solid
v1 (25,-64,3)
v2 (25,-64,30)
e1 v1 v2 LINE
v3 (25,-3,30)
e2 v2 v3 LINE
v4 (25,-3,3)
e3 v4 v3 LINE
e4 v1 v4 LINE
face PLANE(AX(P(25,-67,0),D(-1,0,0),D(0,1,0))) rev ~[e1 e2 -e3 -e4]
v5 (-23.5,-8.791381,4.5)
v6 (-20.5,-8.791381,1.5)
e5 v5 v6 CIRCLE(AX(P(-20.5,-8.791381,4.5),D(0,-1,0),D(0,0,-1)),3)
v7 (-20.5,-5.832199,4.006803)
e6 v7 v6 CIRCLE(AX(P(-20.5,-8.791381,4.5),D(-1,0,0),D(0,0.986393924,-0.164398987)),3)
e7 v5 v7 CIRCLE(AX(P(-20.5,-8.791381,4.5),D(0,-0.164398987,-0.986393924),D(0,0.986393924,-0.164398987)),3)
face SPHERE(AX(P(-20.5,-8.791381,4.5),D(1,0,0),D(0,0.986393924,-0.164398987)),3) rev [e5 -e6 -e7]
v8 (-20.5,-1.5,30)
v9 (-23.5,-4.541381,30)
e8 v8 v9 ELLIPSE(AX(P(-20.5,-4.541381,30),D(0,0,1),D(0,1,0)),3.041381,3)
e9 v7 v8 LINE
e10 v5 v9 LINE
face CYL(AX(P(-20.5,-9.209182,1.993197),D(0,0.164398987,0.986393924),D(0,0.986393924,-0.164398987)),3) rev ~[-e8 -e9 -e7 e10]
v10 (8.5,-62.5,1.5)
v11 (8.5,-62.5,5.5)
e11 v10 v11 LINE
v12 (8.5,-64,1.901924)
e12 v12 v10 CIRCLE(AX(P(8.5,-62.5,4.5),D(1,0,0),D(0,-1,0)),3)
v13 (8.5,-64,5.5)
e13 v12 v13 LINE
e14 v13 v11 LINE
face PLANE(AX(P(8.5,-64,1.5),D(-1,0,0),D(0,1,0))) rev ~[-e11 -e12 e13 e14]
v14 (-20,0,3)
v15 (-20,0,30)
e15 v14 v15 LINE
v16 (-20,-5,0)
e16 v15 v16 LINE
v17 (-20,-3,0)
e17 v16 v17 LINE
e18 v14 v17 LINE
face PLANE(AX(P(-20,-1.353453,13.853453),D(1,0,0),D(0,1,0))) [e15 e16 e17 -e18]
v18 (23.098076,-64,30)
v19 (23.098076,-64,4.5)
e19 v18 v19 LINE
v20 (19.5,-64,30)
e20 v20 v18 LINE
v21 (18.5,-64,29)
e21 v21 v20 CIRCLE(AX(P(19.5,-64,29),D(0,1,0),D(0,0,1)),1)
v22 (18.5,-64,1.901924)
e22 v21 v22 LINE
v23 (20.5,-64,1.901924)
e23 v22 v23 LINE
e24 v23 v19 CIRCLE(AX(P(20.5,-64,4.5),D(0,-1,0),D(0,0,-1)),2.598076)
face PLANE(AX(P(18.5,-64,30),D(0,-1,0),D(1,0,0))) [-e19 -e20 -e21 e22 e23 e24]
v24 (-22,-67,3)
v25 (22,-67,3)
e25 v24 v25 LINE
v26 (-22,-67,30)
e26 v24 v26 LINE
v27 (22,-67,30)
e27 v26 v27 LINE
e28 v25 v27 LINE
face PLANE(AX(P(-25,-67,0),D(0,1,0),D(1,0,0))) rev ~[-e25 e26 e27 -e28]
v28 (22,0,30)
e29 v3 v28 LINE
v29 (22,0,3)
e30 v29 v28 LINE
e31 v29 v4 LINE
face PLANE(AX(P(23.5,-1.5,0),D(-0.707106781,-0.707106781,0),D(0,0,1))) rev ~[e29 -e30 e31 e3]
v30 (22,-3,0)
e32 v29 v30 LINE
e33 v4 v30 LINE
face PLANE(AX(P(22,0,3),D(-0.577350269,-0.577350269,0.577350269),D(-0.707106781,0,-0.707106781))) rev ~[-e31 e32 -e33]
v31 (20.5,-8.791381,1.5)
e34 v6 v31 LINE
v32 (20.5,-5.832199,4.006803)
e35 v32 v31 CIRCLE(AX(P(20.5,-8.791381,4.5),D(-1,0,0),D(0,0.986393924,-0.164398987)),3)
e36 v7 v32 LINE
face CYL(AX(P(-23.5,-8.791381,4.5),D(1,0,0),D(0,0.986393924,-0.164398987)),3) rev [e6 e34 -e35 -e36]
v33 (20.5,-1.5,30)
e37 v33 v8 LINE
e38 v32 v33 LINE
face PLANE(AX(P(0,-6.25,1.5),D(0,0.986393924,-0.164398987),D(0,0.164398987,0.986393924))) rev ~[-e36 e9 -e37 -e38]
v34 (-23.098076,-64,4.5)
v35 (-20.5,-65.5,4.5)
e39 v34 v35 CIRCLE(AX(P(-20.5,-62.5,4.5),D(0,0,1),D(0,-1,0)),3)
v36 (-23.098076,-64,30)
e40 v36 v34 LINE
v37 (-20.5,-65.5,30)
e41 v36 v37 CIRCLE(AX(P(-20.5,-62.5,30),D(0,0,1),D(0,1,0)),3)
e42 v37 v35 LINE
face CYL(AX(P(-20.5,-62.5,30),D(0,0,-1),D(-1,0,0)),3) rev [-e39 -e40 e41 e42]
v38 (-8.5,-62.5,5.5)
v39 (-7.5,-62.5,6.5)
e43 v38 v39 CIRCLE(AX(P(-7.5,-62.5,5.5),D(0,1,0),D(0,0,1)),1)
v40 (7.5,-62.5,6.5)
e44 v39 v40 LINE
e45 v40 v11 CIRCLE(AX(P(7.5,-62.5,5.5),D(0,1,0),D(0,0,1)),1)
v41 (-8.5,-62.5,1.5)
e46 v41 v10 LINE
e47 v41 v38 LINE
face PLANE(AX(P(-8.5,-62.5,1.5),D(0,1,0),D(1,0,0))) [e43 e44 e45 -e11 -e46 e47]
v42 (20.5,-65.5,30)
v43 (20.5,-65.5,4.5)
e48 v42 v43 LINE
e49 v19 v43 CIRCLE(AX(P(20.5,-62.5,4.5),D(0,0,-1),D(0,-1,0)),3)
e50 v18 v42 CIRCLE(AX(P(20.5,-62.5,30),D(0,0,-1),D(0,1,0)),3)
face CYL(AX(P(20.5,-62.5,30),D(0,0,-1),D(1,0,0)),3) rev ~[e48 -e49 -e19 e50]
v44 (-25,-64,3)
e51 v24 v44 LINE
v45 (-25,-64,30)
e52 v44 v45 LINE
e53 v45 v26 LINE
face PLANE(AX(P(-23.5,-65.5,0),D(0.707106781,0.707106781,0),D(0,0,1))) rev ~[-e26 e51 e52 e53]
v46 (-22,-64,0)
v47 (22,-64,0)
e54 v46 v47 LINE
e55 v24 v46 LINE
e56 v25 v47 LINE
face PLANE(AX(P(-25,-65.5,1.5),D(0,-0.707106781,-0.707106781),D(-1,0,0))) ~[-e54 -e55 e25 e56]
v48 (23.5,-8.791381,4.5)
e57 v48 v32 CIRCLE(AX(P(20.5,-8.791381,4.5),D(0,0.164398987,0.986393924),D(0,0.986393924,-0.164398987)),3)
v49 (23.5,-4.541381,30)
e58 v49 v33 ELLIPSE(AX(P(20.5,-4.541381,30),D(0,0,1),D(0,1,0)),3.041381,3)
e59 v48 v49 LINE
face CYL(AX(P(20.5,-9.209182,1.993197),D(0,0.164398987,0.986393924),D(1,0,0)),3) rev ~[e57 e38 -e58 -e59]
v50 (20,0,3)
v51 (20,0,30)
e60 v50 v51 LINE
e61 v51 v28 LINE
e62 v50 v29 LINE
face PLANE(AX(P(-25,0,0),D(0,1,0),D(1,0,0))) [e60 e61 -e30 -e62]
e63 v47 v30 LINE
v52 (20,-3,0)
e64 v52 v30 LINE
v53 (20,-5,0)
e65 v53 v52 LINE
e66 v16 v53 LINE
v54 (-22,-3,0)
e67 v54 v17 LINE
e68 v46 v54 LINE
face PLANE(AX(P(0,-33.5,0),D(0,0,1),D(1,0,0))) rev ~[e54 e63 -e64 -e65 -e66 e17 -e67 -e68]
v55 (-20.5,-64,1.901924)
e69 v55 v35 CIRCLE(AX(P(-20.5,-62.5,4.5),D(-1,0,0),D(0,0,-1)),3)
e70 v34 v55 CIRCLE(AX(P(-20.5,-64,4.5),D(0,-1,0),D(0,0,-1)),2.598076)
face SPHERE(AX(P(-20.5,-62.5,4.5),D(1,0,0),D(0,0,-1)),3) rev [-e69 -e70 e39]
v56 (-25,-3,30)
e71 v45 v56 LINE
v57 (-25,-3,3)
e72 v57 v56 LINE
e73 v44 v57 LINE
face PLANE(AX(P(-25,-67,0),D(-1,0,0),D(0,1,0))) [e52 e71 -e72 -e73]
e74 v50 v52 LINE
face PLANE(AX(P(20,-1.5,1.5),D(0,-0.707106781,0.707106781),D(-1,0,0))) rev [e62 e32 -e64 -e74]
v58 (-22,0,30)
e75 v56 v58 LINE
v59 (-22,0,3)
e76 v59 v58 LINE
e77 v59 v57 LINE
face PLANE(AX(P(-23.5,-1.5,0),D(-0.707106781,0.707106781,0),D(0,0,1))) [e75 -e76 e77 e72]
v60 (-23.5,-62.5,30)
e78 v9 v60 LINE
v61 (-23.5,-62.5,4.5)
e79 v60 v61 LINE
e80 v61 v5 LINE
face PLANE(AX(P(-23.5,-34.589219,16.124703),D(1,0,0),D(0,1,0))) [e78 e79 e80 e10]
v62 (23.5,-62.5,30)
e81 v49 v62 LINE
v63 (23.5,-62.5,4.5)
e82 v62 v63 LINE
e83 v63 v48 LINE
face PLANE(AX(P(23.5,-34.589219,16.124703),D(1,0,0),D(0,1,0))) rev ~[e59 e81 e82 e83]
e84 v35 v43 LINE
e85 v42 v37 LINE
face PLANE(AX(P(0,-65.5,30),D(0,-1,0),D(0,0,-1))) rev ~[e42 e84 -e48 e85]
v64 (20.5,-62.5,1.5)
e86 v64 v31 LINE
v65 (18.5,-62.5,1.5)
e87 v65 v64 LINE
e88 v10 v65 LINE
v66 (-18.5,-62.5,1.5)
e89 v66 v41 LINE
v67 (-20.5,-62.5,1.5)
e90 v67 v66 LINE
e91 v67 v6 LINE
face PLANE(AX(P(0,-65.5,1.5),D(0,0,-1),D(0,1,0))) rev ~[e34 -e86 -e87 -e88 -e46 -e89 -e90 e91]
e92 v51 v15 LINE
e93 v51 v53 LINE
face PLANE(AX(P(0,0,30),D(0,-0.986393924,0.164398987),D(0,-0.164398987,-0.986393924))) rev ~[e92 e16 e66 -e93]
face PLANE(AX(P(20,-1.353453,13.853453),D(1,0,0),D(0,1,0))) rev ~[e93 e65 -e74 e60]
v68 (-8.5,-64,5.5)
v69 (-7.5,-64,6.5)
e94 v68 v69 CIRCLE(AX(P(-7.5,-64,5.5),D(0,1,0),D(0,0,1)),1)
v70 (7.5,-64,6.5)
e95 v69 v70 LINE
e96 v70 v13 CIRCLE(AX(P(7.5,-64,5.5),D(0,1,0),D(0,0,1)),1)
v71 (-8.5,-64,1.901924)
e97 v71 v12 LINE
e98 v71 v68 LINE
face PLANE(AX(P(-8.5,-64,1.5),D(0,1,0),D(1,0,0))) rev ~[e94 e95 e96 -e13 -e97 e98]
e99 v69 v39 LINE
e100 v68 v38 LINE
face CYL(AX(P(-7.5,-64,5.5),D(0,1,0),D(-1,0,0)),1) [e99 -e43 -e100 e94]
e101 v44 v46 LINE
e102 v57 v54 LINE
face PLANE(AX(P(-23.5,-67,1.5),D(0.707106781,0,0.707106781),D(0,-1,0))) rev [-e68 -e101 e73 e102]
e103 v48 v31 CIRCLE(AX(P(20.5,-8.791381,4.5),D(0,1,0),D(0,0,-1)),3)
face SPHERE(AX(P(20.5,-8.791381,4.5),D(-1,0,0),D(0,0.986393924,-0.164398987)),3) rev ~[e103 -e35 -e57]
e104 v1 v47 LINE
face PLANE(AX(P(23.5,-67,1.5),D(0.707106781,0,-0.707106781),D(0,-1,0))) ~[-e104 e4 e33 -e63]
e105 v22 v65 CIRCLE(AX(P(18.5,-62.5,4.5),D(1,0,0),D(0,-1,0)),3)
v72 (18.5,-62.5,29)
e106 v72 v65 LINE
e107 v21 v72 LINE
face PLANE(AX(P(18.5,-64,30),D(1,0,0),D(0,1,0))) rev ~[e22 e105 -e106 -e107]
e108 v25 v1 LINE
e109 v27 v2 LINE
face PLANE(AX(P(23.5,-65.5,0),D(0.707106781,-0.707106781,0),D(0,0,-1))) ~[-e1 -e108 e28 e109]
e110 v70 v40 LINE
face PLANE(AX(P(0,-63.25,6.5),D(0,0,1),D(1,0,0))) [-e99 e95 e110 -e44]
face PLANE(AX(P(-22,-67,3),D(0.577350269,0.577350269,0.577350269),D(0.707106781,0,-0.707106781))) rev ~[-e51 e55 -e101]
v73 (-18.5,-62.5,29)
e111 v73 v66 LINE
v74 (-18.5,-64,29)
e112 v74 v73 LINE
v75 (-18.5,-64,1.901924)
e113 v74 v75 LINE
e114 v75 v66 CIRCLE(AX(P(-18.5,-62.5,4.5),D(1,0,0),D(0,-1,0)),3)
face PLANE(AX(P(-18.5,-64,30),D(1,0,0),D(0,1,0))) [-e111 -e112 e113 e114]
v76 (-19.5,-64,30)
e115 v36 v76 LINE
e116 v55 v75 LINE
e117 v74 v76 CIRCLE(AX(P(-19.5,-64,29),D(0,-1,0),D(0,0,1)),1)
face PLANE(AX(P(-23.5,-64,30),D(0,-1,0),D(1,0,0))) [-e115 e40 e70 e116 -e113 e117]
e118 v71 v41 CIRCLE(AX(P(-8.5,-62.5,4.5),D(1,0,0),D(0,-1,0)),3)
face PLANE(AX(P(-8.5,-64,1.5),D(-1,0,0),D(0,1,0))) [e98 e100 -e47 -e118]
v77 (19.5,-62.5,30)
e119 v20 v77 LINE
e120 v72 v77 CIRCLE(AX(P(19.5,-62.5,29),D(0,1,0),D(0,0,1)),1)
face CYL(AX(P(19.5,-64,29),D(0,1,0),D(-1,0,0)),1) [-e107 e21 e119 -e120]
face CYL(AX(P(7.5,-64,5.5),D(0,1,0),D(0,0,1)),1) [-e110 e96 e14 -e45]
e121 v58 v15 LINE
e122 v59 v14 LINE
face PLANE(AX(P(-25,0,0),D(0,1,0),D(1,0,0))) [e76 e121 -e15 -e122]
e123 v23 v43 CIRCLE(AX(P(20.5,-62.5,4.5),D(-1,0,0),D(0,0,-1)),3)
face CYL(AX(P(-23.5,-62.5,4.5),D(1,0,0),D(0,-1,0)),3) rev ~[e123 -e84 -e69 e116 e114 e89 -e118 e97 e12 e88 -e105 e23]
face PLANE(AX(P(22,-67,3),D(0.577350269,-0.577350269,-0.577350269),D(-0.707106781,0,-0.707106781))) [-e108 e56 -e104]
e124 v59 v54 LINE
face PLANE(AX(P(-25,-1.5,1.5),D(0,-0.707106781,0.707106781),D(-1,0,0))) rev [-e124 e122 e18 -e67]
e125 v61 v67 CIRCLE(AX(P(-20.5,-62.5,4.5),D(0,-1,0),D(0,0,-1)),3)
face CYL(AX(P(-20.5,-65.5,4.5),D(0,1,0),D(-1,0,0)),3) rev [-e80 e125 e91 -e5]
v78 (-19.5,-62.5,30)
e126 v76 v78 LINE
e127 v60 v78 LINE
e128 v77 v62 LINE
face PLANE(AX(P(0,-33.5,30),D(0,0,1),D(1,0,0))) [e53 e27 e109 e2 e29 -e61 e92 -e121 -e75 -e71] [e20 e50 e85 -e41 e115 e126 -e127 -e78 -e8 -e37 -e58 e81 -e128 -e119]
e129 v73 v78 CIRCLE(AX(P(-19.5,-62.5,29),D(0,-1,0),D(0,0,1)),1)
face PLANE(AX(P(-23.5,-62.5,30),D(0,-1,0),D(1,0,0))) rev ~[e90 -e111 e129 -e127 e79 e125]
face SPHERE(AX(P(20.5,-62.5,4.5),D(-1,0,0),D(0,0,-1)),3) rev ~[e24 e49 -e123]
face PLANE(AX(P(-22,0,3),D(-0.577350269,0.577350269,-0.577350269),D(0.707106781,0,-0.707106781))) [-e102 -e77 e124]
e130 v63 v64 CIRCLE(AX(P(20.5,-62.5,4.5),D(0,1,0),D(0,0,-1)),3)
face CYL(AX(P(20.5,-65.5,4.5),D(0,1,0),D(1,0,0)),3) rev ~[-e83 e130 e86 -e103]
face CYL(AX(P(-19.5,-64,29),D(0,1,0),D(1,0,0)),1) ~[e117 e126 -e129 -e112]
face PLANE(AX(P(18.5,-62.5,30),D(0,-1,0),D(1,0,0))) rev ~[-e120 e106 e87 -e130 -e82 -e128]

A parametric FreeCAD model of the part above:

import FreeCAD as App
import Part
import Sketcher


def edges_at(feature, points):
    """Names of the edges that pass closest to the given points."""
    edges = feature.Shape.Edges
    near = lambda p: min(range(len(edges)), key=lambda i: edges[i].distToShape(Part.Vertex(*p))[0])
    return sorted({f"Edge{near(p) + 1}" for p in points})

doc = App.newDocument("Part")
body = doc.addObject("PartDesign::Body", "Body")

sketch1 = doc.addObject("Sketcher::SketchObject", "Sketch")
body.addObject(sketch1)
sketch1.AttachmentSupport = (doc.XY_Plane, [""])
sketch1.MapMode = "FlatFace"
sketch1.addGeometry([
    Part.LineSegment(App.Vector(-25, 0, 0), App.Vector(-25, -67, 0)),
    Part.LineSegment(App.Vector(-25, -67, 0), App.Vector(25, -67, 0)),
    Part.LineSegment(App.Vector(25, -67, 0), App.Vector(25, 0, 0)),
    Part.LineSegment(App.Vector(25, 0, 0), App.Vector(-25, 0, 0)),
], False)
sketch1.addConstraint([
    Sketcher.Constraint("Coincident", 0, 2, 1, 1),
    Sketcher.Constraint("Coincident", 1, 2, 2, 1),
    Sketcher.Constraint("Coincident", 2, 2, 3, 1),
    Sketcher.Constraint("Coincident", 3, 2, 0, 1),
    Sketcher.Constraint("Vertical", 0),
    Sketcher.Constraint("Horizontal", 1),
    Sketcher.Constraint("Vertical", 2),
    Sketcher.Constraint("Horizontal", 3),
    Sketcher.Constraint("Symmetric", 2, 2, 3, 2, -1, 1),
    Sketcher.Constraint("DistanceX", 1, 1, 1, 2, 50.0),
    Sketcher.Constraint("DistanceY", 0, 2, 0, 1, 67.0),
])
pad1 = doc.addObject("PartDesign::Pad", "Pad")
body.addObject(pad1)
pad1.Profile = sketch1
pad1.Length = 30

sketch2 = doc.addObject("Sketcher::SketchObject", "Sketch001")
body.addObject(sketch2)
sketch2.AttachmentSupport = (doc.YZ_Plane, [""])
sketch2.MapMode = "FlatFace"
sketch2.addGeometry([
    Part.LineSegment(App.Vector(0, 30, 0), App.Vector(-5, 0, 0)),
    Part.LineSegment(App.Vector(-5, 0, 0), App.Vector(0, 0, 0)),
    Part.LineSegment(App.Vector(0, 0, 0), App.Vector(0, 30, 0)),
], False)
sketch2.addConstraint([
    Sketcher.Constraint("Coincident", 0, 2, 1, 1),
    Sketcher.Constraint("Coincident", 1, 2, 2, 1),
    Sketcher.Constraint("Coincident", 2, 2, 0, 1),
    Sketcher.Constraint("Horizontal", 1),
    Sketcher.Constraint("Vertical", 2),
    Sketcher.Constraint("Coincident", 1, 2, -1, 1),
    Sketcher.Constraint("DistanceX", 1, 1, 1, 2, 5.0),
    Sketcher.Constraint("DistanceY", 2, 1, 2, 2, 30.0),
])
pocket1 = doc.addObject("PartDesign::Pocket", "Pocket")
body.addObject(pocket1)
pocket1.Profile = sketch2
pocket1.Length = 40
pocket1.Midplane = True

sketch3 = doc.addObject("Sketcher::SketchObject", "Sketch002")
body.addObject(sketch3)
sketch3.AttachmentSupport = (doc.YZ_Plane, [""])
sketch3.MapMode = "FlatFace"
sketch3.addGeometry([
    Part.LineSegment(App.Vector(-66, 30, 0), App.Vector(-66, 2, 0)),
    Part.LineSegment(App.Vector(-66, 2, 0), App.Vector(-6, 2, 0)),
    Part.LineSegment(App.Vector(-6, 2, 0), App.Vector(-2, 30, 0)),
    Part.LineSegment(App.Vector(-2, 30, 0), App.Vector(-66, 30, 0)),
], False)
sketch3.addConstraint([
    Sketcher.Constraint("Coincident", 0, 2, 1, 1),
    Sketcher.Constraint("Coincident", 1, 2, 2, 1),
    Sketcher.Constraint("Coincident", 2, 2, 3, 1),
    Sketcher.Constraint("Coincident", 3, 2, 0, 1),
    Sketcher.Constraint("Vertical", 0),
    Sketcher.Constraint("Horizontal", 1),
    Sketcher.Constraint("Horizontal", 3),
    Sketcher.Constraint("DistanceX", 3, 2, 3, 1, 64.0),
    Sketcher.Constraint("DistanceY", 0, 2, 0, 1, 28.5),
    Sketcher.Constraint("DistanceY", -1, 1, 2, 2, 30.0),
    Sketcher.Constraint("DistanceX", 1, 1, 1, 2, 59.25),
    Sketcher.Constraint("DistanceX", 0, 2, -1, 1, 65.5),
])
pocket2 = doc.addObject("PartDesign::Pocket", "Pocket001")
body.addObject(pocket2)
pocket2.Profile = sketch3
pocket2.Length = 47
pocket2.Midplane = True
doc.recompute()

fillet = doc.addObject("PartDesign::Fillet", "Fillet")
body.addObject(fillet)
fillet.Base = (pocket2, edges_at(pocket2, [
    (0, -65.5, 1.5),
    (23.5, -35.875, 1.5),
    (-23.5, -35.875, 1.5),
    (0, -6.25, 1.5),
    (23.5, -65.5, 15.75),
    (-23.5, -65.5, 15.75),
    (23.5, -3.875, 15.75),
    (-23.5, -3.875, 15.75),
]))
fillet.Radius = 3

sketch4 = doc.addObject("Sketcher::SketchObject", "Sketch003")
body.addObject(sketch4)
sketch4.AttachmentSupport = (doc.XY_Plane, [""])
sketch4.MapMode = "FlatFace"
sketch4.AttachmentOffset = App.Placement(App.Vector(0, 0, 30), App.Rotation())
sketch4.addGeometry([
    Part.LineSegment(App.Vector(-23.5, -62.5, 0), App.Vector(-23.5, -64, 0)),
    Part.LineSegment(App.Vector(-23.5, -64, 0), App.Vector(-18.5, -64, 0)),
    Part.LineSegment(App.Vector(-18.5, -64, 0), App.Vector(-18.5, -62.5, 0)),
    Part.LineSegment(App.Vector(-18.5, -62.5, 0), App.Vector(-23.5, -62.5, 0)),
    Part.LineSegment(App.Vector(18.5, -62.5, 0), App.Vector(18.5, -64, 0)),
    Part.LineSegment(App.Vector(18.5, -64, 0), App.Vector(23.5, -64, 0)),
    Part.LineSegment(App.Vector(23.5, -64, 0), App.Vector(23.5, -62.5, 0)),
    Part.LineSegment(App.Vector(23.5, -62.5, 0), App.Vector(18.5, -62.5, 0)),
], False)
sketch4.addConstraint([
    Sketcher.Constraint("Coincident", 0, 2, 1, 1),
    Sketcher.Constraint("Coincident", 1, 2, 2, 1),
    Sketcher.Constraint("Coincident", 2, 2, 3, 1),
    Sketcher.Constraint("Coincident", 3, 2, 0, 1),
    Sketcher.Constraint("Coincident", 4, 2, 5, 1),
    Sketcher.Constraint("Coincident", 5, 2, 6, 1),
    Sketcher.Constraint("Coincident", 6, 2, 7, 1),
    Sketcher.Constraint("Coincident", 7, 2, 4, 1),
    Sketcher.Constraint("Vertical", 0),
    Sketcher.Constraint("Horizontal", 1),
    Sketcher.Constraint("Vertical", 2),
    Sketcher.Constraint("Horizontal", 3),
    Sketcher.Constraint("Vertical", 4),
    Sketcher.Constraint("Horizontal", 5),
    Sketcher.Constraint("Vertical", 6),
    Sketcher.Constraint("Horizontal", 7),
    Sketcher.Constraint("Symmetric", 1, 2, 4, 2, -2),
    Sketcher.Constraint("Symmetric", 3, 2, 6, 2, -2),
    Sketcher.Constraint("DistanceX", 1, 1, 1, 2, 5.0),
    Sketcher.Constraint("DistanceY", 0, 2, 0, 1, 1.5),
    Sketcher.Constraint("DistanceY", 0, 2, -1, 1, 64.0),
    Sketcher.Constraint("DistanceX", 1, 2, 4, 2, 37.0),
])
pad2 = doc.addObject("PartDesign::Pad", "Pad001")
body.addObject(pad2)
pad2.Profile = sketch4
pad2.Length = 28.5
pad2.Reversed = True
doc.recompute()

chamfer = doc.addObject("PartDesign::Chamfer", "Chamfer")
body.addObject(chamfer)
chamfer.Base = (pad2, edges_at(pad2, [
    (-25, -33.5, 0),
    (25, -33.5, 0),
    (25, -67, 15),
    (-25, -67, 15),
    (0, -67, 0),
    (25, 0, 15),
    (-25, 0, 15),
    (-22.5, 0, 0),
    (22.5, 0, 0),
]))
chamfer.Size = 3

sketch5 = doc.addObject("Sketcher::SketchObject", "Sketch004")
body.addObject(sketch5)
sketch5.AttachmentSupport = (doc.XY_Plane, [""])
sketch5.MapMode = "FlatFace"
sketch5.AttachmentOffset = App.Placement(App.Vector(0, 0, 1.5), App.Rotation())
sketch5.addGeometry([
    Part.LineSegment(App.Vector(-8.5, -62.5, 0), App.Vector(-8.5, -64, 0)),
    Part.LineSegment(App.Vector(-8.5, -64, 0), App.Vector(8.5, -64, 0)),
    Part.LineSegment(App.Vector(8.5, -64, 0), App.Vector(8.5, -62.5, 0)),
    Part.LineSegment(App.Vector(8.5, -62.5, 0), App.Vector(-8.5, -62.5, 0)),
], False)
sketch5.addConstraint([
    Sketcher.Constraint("Coincident", 0, 2, 1, 1),
    Sketcher.Constraint("Coincident", 1, 2, 2, 1),
    Sketcher.Constraint("Coincident", 2, 2, 3, 1),
    Sketcher.Constraint("Coincident", 3, 2, 0, 1),
    Sketcher.Constraint("Vertical", 0),
    Sketcher.Constraint("Horizontal", 1),
    Sketcher.Constraint("Vertical", 2),
    Sketcher.Constraint("Horizontal", 3),
    Sketcher.Constraint("DistanceX", 1, 1, 1, 2, 17.0),
    Sketcher.Constraint("DistanceY", 0, 2, 0, 1, 1.5),
    Sketcher.Constraint("DistanceY", 0, 2, -1, 1, 64.0),
    Sketcher.Constraint("DistanceX", 0, 2, -1, 1, 8.5),
])
pad3 = doc.addObject("PartDesign::Pad", "Pad002")
body.addObject(pad3)
pad3.Profile = sketch5
pad3.Length = 5
doc.recompute()

fillet2 = doc.addObject("PartDesign::Fillet", "Fillet001")
body.addObject(fillet2)
fillet2.Base = (pad3, edges_at(pad3, [
    (18.5, -63.25, 30),
    (8.5, -63.25, 6.5),
    (-8.5, -63.25, 6.5),
    (-18.5, -63.25, 30),
]))
fillet2.Radius = 1

doc.recompute()
